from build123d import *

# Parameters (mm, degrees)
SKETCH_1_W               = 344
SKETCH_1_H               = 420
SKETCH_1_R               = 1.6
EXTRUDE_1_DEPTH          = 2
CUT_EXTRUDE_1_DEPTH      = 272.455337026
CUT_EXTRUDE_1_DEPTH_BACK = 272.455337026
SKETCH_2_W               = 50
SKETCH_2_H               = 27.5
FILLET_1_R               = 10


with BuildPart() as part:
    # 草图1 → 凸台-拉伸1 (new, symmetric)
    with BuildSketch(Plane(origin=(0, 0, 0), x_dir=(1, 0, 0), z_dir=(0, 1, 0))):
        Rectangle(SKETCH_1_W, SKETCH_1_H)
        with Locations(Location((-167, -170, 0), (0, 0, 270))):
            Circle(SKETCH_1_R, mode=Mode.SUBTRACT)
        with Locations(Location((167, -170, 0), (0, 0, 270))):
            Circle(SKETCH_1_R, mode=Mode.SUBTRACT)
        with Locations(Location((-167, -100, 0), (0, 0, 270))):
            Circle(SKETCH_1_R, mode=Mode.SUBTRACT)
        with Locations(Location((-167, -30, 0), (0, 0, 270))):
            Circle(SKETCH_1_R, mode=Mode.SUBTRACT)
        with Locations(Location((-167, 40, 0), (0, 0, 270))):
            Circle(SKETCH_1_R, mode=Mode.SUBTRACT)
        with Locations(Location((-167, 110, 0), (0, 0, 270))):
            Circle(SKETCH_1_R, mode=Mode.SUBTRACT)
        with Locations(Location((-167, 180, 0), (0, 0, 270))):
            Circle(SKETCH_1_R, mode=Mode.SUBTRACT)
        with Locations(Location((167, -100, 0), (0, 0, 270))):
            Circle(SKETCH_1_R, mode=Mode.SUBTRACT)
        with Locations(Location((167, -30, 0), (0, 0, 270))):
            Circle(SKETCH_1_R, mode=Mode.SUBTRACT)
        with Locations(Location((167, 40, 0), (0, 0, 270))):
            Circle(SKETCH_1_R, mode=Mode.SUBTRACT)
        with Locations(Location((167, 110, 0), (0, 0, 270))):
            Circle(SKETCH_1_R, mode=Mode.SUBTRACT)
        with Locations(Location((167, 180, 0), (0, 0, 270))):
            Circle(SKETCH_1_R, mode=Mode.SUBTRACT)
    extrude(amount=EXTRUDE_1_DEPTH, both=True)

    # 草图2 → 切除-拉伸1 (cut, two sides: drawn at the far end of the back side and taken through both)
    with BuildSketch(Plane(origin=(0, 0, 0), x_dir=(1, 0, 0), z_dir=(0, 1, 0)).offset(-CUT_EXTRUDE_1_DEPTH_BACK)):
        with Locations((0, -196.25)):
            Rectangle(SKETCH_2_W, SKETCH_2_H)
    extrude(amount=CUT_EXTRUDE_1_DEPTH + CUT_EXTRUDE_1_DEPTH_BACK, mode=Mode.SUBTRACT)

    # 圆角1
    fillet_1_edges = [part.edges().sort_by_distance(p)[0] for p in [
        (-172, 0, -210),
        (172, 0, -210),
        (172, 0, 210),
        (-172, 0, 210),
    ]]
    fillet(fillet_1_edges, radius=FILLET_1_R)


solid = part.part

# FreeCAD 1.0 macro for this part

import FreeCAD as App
import Part
import Sketcher
from FreeCAD import Vector


def edges_at(feature, points):
    """Names of the edges that pass closest to the given points."""
    edges = feature.Shape.Edges
    near = lambda p: min(range(len(edges)), key=lambda i: edges[i].distToShape(Part.Vertex(*p))[0])
    return sorted({f"Edge{near(p) + 1}" for p in points})

doc = App.newDocument("Part")
body = doc.addObject("PartDesign::Body", "Body")

# Sketch on XZ plane
sketch1 = body.newObject("Sketcher::SketchObject", "Sketch")
sketch1.AttachmentSupport = (doc.getObject("XZ_Plane"), [""])
sketch1.MapMode = "FlatFace"
sketch1.addGeometry([
    Part.LineSegment(Vector(-172, -210, 0), Vector(-172, 210, 0)),  # 0
    Part.LineSegment(Vector(-172, 210, 0), Vector(172, 210, 0)),  # 1
    Part.LineSegment(Vector(172, 210, 0), Vector(172, -210, 0)),  # 2
    Part.LineSegment(Vector(172, -210, 0), Vector(-172, -210, 0)),  # 3
    Part.Circle(Vector(-167, 170, 0), Vector(0, 0, 1), 1.6),  # 4
    Part.Circle(Vector(-167, 100, 0), Vector(0, 0, 1), 1.6),  # 5
    Part.Circle(Vector(-167, 30, 0), Vector(0, 0, 1), 1.6),  # 6
    Part.Circle(Vector(167, 170, 0), Vector(0, 0, 1), 1.6),  # 7
    Part.Circle(Vector(167, 100, 0), Vector(0, 0, 1), 1.6),  # 8
    Part.Circle(Vector(167, 30, 0), Vector(0, 0, 1), 1.6),  # 9
    Part.Circle(Vector(-167, -40, 0), Vector(0, 0, 1), 1.6),  # 10
    Part.Circle(Vector(-167, -110, 0), Vector(0, 0, 1), 1.6),  # 11
    Part.Circle(Vector(-167, -180, 0), Vector(0, 0, 1), 1.6),  # 12
    Part.Circle(Vector(167, -40, 0), Vector(0, 0, 1), 1.6),  # 13
    Part.Circle(Vector(167, -110, 0), Vector(0, 0, 1), 1.6),  # 14
    Part.Circle(Vector(167, -180, 0), Vector(0, 0, 1), 1.6),  # 15
], False)
sketch1.addConstraint([
    Sketcher.Constraint("Coincident", 0, 2, 1, 1),
    Sketcher.Constraint("Coincident", 1, 2, 2, 1),
    Sketcher.Constraint("Coincident", 2, 2, 3, 1),
    Sketcher.Constraint("Coincident", 3, 2, 0, 1),
    Sketcher.Constraint("Vertical", 0),
    Sketcher.Constraint("Horizontal", 1),
    Sketcher.Constraint("Vertical", 2),
    Sketcher.Constraint("Horizontal", 3),
    Sketcher.Constraint("Equal", 4, 5),
    Sketcher.Constraint("Equal", 5, 6),
    Sketcher.Constraint("Equal", 6, 7),
    Sketcher.Constraint("Equal", 7, 8),
    Sketcher.Constraint("Equal", 8, 9),
    Sketcher.Constraint("Equal", 9, 10),
    Sketcher.Constraint("Equal", 10, 11),
    Sketcher.Constraint("Equal", 11, 12),
    Sketcher.Constraint("Equal", 12, 13),
    Sketcher.Constraint("Equal", 13, 14),
    Sketcher.Constraint("Equal", 14, 15),
    Sketcher.Constraint("Symmetric", 0, 2, 2, 2, -1, 1),
    Sketcher.Constraint("Symmetric", 4, 3, 7, 3, -2),
    Sketcher.Constraint("Symmetric", 5, 3, 8, 3, -2),
    Sketcher.Constraint("Symmetric", 6, 3, 9, 3, -2),
    Sketcher.Constraint("Symmetric", 10, 3, 13, 3, -2),
    Sketcher.Constraint("Symmetric", 11, 3, 14, 3, -2),
    Sketcher.Constraint("Symmetric", 12, 3, 15, 3, -2),
    Sketcher.Constraint("Vertical", 4, 3, 5, 3),
    Sketcher.Constraint("Vertical", 5, 3, 6, 3),
    Sketcher.Constraint("Vertical", 6, 3, 10, 3),
    Sketcher.Constraint("Vertical", 10, 3, 11, 3),
    Sketcher.Constraint("Vertical", 11, 3, 12, 3),
    Sketcher.Constraint("Diameter", 4, 3.2),
    Sketcher.Constraint("DistanceX", 1, 1, 1, 2, 344.0),
    Sketcher.Constraint("DistanceY", 0, 1, 0, 2, 420.0),
    Sketcher.Constraint("DistanceX", 4, 3, -1, 1, 167.0),
    Sketcher.Constraint("DistanceY", -1, 1, 4, 3, 170.0),
    Sketcher.Constraint("DistanceY", -1, 1, 5, 3, 100.0),
    Sketcher.Constraint("DistanceY", -1, 1, 6, 3, 30.0),
    Sketcher.Constraint("DistanceY", 10, 3, -1, 1, 40.0),
    Sketcher.Constraint("DistanceY", 11, 3, -1, 1, 110.0),
    Sketcher.Constraint("DistanceY", 12, 3, -1, 1, 180.0),
])
pad1 = body.newObject("PartDesign::Pad", "Pad")
pad1.Profile = sketch1
pad1.Length = 4
pad1.Midplane = True

# Sketch on XZ plane
sketch2 = body.newObject("Sketcher::SketchObject", "Sketch001")
sketch2.AttachmentSupport = (doc.getObject("XZ_Plane"), [""])
sketch2.MapMode = "FlatFace"
sketch2.addGeometry([
    Part.LineSegment(Vector(-25, 182, 0), Vector(-25, 210, 0)),
    Part.LineSegment(Vector(-25, 210, 0), Vector(25, 210, 0)),
    Part.LineSegment(Vector(25, 210, 0), Vector(25, 182, 0)),
    Part.LineSegment(Vector(25, 182, 0), Vector(-25, 182, 0)),
], False)
sketch2.addConstraint([
    Sketcher.Constraint("Coincident", 0, 2, 1, 1),
    Sketcher.Constraint("Coincident", 1, 2, 2, 1),
    Sketcher.Constraint("Coincident", 2, 2, 3, 1),
    Sketcher.Constraint("Coincident", 3, 2, 0, 1),
    Sketcher.Constraint("Vertical", 0),
    Sketcher.Constraint("Horizontal", 1),
    Sketcher.Constraint("Vertical", 2),
    Sketcher.Constraint("Horizontal", 3),
    Sketcher.Constraint("DistanceX", 1, 1, 1, 2, 50.0),
    Sketcher.Constraint("DistanceY", 0, 1, 0, 2, 27.5),
    Sketcher.Constraint("DistanceX", 0, 2, -1, 1, 25.0),
    Sketcher.Constraint("DistanceY", -1, 1, 0, 2, 210.0),
])
pocket1 = body.newObject("PartDesign::Pocket", "Pocket")
pocket1.Profile = sketch2
pocket1.Type = "ThroughAll"
pocket1.Midplane = True
doc.recompute()

fillet = body.newObject("PartDesign::Fillet", "Fillet")
fillet.Base = (pocket1, edges_at(pocket1, [
    (-172, 0, -210),
    (172, 0, -210),
    (172, 0, 210),
    (-172, 0, 210),
]))
fillet.Radius = 10

doc.recompute()
